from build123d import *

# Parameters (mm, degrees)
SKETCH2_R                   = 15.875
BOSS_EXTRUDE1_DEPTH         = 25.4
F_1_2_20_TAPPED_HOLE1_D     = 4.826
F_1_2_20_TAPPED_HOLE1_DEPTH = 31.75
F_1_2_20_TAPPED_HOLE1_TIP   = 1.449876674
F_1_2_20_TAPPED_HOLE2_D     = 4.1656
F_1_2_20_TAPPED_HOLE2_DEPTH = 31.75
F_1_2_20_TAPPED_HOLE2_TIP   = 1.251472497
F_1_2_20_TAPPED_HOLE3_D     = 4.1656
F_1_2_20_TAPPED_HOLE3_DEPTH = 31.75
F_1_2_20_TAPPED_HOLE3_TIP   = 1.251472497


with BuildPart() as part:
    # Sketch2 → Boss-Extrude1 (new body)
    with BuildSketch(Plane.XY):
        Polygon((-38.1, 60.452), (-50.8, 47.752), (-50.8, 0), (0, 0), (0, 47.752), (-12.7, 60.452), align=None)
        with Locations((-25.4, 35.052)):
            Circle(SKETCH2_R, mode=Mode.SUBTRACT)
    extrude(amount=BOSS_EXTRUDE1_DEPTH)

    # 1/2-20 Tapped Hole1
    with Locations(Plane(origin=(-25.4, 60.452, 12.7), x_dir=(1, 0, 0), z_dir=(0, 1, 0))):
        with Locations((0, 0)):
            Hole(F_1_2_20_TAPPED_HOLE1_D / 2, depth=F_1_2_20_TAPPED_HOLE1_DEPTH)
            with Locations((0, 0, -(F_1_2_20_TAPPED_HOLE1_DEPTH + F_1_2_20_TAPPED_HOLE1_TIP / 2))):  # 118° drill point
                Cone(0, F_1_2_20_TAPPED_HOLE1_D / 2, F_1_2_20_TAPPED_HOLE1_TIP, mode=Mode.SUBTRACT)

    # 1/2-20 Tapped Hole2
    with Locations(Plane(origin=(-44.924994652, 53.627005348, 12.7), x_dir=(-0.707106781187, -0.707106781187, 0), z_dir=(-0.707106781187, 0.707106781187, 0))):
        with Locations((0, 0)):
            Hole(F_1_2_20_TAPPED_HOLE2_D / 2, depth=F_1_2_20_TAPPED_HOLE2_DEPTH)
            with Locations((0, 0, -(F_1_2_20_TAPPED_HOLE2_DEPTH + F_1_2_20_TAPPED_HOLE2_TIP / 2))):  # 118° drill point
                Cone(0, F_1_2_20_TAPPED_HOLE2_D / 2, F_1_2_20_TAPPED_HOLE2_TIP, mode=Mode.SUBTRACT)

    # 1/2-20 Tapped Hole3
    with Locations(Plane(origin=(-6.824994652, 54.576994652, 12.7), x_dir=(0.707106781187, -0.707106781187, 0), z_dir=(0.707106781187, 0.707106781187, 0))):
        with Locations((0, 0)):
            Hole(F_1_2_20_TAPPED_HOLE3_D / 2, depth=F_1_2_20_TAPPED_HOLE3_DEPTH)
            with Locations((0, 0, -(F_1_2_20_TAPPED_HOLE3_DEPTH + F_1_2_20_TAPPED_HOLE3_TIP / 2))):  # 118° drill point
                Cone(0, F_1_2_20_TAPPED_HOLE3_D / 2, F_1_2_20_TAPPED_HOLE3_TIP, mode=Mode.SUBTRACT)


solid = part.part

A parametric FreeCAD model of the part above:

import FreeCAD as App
import Part
import Sketcher
from FreeCAD import Vector
Q = App.Units.Quantity

doc = App.newDocument("Part")
body = doc.addObject("PartDesign::Body", "Body")

# Sketch on XY plane
sketch1 = body.newObject("Sketcher::SketchObject", "Sketch")
sketch1.AttachmentSupport = (doc.getObject("XY_Plane"), [""])
sketch1.MapMode = "FlatFace"
sketch1.addGeometry([
    Part.LineSegment(Vector(-38, 60, 0), Vector(-51, 48, 0)),  # 0
    Part.LineSegment(Vector(-51, 48, 0), Vector(-51, 0, 0)),  # 1
    Part.LineSegment(Vector(-51, 0, 0), Vector(0, 0, 0)),  # 2
    Part.LineSegment(Vector(0, 0, 0), Vector(0, 48, 0)),  # 3
    Part.LineSegment(Vector(0, 48, 0), Vector(-13, 60, 0)),  # 4
    Part.LineSegment(Vector(-13, 60, 0), Vector(-38, 60, 0)),  # 5
    Part.Circle(Vector(-25, 35, 0), Vector(0, 0, 1), 16),  # 6
], False)
sketch1.addConstraint([
    Sketcher.Constraint("Coincident", 0, 2, 1, 1),
    Sketcher.Constraint("Coincident", 1, 2, 2, 1),
    Sketcher.Constraint("Coincident", 2, 2, 3, 1),
    Sketcher.Constraint("Coincident", 3, 2, 4, 1),
    Sketcher.Constraint("Coincident", 4, 2, 5, 1),
    Sketcher.Constraint("Coincident", 5, 2, 0, 1),
    Sketcher.Constraint("Vertical", 1),
    Sketcher.Constraint("Horizontal", 2),
    Sketcher.Constraint("Vertical", 3),
    Sketcher.Constraint("Horizontal", 5),
    Sketcher.Constraint("Coincident", 2, 2, -1, 1),
    Sketcher.Constraint("Perpendicular", 0, 4),
    Sketcher.Constraint("Horizontal", 0, 2, 3, 2),
    Sketcher.Constraint("Equal", 0, 4),
    Sketcher.Constraint("Diameter", 6, Q("1.25 in")),
    Sketcher.Constraint("DistanceX", 2, 1, 2, 2, Q("2 in")),
    Sketcher.Constraint("DistanceX", 5, 2, 5, 1, Q("1 in")),
    Sketcher.Constraint("DistanceX", 6, 3, -1, 1, Q("1 in")),
    Sketcher.Constraint("DistanceY", 6, 3, 4, 2, Q("1 in")),
    Sketcher.Constraint("DistanceY", 1, 2, 1, 1, Q("1.88 in")),
])
pad1 = body.newObject("PartDesign::Pad", "Pad")
pad1.Profile = sketch1
pad1.Length = Q("1 in")

# Sketch on XZ plane
sketch2 = body.newObject("Sketcher::SketchObject", "Sketch001")
sketch2.AttachmentSupport = (doc.getObject("XZ_Plane"), [""])
sketch2.MapMode = "FlatFace"
sketch2.AttachmentOffset = App.Placement(Vector(0, 0, -2.38 * 25.4), App.Rotation())
sketch2.addGeometry(Part.Circle(Vector(-25.4, 12.7, 0), Vector(0, 0, 1), 2.4), False)
sketch2.addConstraint([
    Sketcher.Constraint("Diameter", 0, Q("0.19 in")),
    Sketcher.Constraint("DistanceX", 0, 3, -1, 1, Q("1 in")),
    Sketcher.Constraint("DistanceY", -1, 1, 0, 3, Q("0.5 in")),
])
doc.recompute()
hole = body.newObject("PartDesign::Hole", "Hole")
hole.Profile = sketch2
hole.ThreadType = "None"
hole.Diameter = Q("0.19 in")
hole.DepthType = "Dimension"
hole.Depth = Q("1.25 in")
hole.DrillPoint = "Angled"
hole.DrillPointAngle = 118
hole.Reversed = True

# Sketch on an angled plane
sketch3 = body.newObject("Sketcher::SketchObject", "Sketch002")
sketch3.Placement = App.Placement(Vector(-49.276, 49.276, 0), App.Rotation(Vector(-0.707106781, -0.707106781, 0), Vector(0, 0, 0.999999999), Vector(-0.707106781, 0.707106781, 0), "ZXY"))
sketch3.addGeometry(Part.Circle(Vector(-6.2, 12.7, 0), Vector(0, 0, 1), 2.1), False)
sketch3.addConstraint([
    Sketcher.Constraint("Diameter", 0, Q("0.164 in")),
    Sketcher.Constraint("DistanceY", -1, 1, 0, 3, Q("0.5 in")),
    Sketcher.Constraint("DistanceX", 0, 3, -1, 1, 6.153251),
])
doc.recompute()
hole2 = body.newObject("PartDesign::Hole", "Hole001")
hole2.Profile = sketch3
hole2.ThreadType = "None"
hole2.Diameter = Q("0.164 in")
hole2.DepthType = "Dimension"
hole2.Depth = Q("1.25 in")
hole2.DrillPoint = "Angled"
hole2.DrillPointAngle = 118

# Sketch on an angled plane
sketch4 = body.newObject("Sketcher::SketchObject", "Sketch003")
sketch4.Placement = App.Placement(Vector(23.876, 23.876, 0), App.Rotation(Vector(0.707106781, -0.707106781, 0), Vector(0, 0, -0.999999999), Vector(0.707106781, 0.707106781, 0), "ZXY"))
sketch4.addGeometry(Part.Circle(Vector(-43.4, -12.7, 0), Vector(0, 0, 1), 2.1), False)
sketch4.addConstraint([
    Sketcher.Constraint("Diameter", 0, Q("0.164 in")),
    Sketcher.Constraint("DistanceY", 0, 3, -1, 1, Q("0.5 in")),
    Sketcher.Constraint("DistanceX", 0, 3, -1, 1, 43.417763),
])
doc.recompute()
hole3 = body.newObject("PartDesign::Hole", "Hole002")
hole3.Profile = sketch4
hole3.ThreadType = "None"
hole3.Diameter = Q("0.164 in")
hole3.DepthType = "Dimension"
hole3.Depth = Q("1.25 in")
hole3.DrillPoint = "Angled"
hole3.DrillPointAngle = 118

doc.recompute()
